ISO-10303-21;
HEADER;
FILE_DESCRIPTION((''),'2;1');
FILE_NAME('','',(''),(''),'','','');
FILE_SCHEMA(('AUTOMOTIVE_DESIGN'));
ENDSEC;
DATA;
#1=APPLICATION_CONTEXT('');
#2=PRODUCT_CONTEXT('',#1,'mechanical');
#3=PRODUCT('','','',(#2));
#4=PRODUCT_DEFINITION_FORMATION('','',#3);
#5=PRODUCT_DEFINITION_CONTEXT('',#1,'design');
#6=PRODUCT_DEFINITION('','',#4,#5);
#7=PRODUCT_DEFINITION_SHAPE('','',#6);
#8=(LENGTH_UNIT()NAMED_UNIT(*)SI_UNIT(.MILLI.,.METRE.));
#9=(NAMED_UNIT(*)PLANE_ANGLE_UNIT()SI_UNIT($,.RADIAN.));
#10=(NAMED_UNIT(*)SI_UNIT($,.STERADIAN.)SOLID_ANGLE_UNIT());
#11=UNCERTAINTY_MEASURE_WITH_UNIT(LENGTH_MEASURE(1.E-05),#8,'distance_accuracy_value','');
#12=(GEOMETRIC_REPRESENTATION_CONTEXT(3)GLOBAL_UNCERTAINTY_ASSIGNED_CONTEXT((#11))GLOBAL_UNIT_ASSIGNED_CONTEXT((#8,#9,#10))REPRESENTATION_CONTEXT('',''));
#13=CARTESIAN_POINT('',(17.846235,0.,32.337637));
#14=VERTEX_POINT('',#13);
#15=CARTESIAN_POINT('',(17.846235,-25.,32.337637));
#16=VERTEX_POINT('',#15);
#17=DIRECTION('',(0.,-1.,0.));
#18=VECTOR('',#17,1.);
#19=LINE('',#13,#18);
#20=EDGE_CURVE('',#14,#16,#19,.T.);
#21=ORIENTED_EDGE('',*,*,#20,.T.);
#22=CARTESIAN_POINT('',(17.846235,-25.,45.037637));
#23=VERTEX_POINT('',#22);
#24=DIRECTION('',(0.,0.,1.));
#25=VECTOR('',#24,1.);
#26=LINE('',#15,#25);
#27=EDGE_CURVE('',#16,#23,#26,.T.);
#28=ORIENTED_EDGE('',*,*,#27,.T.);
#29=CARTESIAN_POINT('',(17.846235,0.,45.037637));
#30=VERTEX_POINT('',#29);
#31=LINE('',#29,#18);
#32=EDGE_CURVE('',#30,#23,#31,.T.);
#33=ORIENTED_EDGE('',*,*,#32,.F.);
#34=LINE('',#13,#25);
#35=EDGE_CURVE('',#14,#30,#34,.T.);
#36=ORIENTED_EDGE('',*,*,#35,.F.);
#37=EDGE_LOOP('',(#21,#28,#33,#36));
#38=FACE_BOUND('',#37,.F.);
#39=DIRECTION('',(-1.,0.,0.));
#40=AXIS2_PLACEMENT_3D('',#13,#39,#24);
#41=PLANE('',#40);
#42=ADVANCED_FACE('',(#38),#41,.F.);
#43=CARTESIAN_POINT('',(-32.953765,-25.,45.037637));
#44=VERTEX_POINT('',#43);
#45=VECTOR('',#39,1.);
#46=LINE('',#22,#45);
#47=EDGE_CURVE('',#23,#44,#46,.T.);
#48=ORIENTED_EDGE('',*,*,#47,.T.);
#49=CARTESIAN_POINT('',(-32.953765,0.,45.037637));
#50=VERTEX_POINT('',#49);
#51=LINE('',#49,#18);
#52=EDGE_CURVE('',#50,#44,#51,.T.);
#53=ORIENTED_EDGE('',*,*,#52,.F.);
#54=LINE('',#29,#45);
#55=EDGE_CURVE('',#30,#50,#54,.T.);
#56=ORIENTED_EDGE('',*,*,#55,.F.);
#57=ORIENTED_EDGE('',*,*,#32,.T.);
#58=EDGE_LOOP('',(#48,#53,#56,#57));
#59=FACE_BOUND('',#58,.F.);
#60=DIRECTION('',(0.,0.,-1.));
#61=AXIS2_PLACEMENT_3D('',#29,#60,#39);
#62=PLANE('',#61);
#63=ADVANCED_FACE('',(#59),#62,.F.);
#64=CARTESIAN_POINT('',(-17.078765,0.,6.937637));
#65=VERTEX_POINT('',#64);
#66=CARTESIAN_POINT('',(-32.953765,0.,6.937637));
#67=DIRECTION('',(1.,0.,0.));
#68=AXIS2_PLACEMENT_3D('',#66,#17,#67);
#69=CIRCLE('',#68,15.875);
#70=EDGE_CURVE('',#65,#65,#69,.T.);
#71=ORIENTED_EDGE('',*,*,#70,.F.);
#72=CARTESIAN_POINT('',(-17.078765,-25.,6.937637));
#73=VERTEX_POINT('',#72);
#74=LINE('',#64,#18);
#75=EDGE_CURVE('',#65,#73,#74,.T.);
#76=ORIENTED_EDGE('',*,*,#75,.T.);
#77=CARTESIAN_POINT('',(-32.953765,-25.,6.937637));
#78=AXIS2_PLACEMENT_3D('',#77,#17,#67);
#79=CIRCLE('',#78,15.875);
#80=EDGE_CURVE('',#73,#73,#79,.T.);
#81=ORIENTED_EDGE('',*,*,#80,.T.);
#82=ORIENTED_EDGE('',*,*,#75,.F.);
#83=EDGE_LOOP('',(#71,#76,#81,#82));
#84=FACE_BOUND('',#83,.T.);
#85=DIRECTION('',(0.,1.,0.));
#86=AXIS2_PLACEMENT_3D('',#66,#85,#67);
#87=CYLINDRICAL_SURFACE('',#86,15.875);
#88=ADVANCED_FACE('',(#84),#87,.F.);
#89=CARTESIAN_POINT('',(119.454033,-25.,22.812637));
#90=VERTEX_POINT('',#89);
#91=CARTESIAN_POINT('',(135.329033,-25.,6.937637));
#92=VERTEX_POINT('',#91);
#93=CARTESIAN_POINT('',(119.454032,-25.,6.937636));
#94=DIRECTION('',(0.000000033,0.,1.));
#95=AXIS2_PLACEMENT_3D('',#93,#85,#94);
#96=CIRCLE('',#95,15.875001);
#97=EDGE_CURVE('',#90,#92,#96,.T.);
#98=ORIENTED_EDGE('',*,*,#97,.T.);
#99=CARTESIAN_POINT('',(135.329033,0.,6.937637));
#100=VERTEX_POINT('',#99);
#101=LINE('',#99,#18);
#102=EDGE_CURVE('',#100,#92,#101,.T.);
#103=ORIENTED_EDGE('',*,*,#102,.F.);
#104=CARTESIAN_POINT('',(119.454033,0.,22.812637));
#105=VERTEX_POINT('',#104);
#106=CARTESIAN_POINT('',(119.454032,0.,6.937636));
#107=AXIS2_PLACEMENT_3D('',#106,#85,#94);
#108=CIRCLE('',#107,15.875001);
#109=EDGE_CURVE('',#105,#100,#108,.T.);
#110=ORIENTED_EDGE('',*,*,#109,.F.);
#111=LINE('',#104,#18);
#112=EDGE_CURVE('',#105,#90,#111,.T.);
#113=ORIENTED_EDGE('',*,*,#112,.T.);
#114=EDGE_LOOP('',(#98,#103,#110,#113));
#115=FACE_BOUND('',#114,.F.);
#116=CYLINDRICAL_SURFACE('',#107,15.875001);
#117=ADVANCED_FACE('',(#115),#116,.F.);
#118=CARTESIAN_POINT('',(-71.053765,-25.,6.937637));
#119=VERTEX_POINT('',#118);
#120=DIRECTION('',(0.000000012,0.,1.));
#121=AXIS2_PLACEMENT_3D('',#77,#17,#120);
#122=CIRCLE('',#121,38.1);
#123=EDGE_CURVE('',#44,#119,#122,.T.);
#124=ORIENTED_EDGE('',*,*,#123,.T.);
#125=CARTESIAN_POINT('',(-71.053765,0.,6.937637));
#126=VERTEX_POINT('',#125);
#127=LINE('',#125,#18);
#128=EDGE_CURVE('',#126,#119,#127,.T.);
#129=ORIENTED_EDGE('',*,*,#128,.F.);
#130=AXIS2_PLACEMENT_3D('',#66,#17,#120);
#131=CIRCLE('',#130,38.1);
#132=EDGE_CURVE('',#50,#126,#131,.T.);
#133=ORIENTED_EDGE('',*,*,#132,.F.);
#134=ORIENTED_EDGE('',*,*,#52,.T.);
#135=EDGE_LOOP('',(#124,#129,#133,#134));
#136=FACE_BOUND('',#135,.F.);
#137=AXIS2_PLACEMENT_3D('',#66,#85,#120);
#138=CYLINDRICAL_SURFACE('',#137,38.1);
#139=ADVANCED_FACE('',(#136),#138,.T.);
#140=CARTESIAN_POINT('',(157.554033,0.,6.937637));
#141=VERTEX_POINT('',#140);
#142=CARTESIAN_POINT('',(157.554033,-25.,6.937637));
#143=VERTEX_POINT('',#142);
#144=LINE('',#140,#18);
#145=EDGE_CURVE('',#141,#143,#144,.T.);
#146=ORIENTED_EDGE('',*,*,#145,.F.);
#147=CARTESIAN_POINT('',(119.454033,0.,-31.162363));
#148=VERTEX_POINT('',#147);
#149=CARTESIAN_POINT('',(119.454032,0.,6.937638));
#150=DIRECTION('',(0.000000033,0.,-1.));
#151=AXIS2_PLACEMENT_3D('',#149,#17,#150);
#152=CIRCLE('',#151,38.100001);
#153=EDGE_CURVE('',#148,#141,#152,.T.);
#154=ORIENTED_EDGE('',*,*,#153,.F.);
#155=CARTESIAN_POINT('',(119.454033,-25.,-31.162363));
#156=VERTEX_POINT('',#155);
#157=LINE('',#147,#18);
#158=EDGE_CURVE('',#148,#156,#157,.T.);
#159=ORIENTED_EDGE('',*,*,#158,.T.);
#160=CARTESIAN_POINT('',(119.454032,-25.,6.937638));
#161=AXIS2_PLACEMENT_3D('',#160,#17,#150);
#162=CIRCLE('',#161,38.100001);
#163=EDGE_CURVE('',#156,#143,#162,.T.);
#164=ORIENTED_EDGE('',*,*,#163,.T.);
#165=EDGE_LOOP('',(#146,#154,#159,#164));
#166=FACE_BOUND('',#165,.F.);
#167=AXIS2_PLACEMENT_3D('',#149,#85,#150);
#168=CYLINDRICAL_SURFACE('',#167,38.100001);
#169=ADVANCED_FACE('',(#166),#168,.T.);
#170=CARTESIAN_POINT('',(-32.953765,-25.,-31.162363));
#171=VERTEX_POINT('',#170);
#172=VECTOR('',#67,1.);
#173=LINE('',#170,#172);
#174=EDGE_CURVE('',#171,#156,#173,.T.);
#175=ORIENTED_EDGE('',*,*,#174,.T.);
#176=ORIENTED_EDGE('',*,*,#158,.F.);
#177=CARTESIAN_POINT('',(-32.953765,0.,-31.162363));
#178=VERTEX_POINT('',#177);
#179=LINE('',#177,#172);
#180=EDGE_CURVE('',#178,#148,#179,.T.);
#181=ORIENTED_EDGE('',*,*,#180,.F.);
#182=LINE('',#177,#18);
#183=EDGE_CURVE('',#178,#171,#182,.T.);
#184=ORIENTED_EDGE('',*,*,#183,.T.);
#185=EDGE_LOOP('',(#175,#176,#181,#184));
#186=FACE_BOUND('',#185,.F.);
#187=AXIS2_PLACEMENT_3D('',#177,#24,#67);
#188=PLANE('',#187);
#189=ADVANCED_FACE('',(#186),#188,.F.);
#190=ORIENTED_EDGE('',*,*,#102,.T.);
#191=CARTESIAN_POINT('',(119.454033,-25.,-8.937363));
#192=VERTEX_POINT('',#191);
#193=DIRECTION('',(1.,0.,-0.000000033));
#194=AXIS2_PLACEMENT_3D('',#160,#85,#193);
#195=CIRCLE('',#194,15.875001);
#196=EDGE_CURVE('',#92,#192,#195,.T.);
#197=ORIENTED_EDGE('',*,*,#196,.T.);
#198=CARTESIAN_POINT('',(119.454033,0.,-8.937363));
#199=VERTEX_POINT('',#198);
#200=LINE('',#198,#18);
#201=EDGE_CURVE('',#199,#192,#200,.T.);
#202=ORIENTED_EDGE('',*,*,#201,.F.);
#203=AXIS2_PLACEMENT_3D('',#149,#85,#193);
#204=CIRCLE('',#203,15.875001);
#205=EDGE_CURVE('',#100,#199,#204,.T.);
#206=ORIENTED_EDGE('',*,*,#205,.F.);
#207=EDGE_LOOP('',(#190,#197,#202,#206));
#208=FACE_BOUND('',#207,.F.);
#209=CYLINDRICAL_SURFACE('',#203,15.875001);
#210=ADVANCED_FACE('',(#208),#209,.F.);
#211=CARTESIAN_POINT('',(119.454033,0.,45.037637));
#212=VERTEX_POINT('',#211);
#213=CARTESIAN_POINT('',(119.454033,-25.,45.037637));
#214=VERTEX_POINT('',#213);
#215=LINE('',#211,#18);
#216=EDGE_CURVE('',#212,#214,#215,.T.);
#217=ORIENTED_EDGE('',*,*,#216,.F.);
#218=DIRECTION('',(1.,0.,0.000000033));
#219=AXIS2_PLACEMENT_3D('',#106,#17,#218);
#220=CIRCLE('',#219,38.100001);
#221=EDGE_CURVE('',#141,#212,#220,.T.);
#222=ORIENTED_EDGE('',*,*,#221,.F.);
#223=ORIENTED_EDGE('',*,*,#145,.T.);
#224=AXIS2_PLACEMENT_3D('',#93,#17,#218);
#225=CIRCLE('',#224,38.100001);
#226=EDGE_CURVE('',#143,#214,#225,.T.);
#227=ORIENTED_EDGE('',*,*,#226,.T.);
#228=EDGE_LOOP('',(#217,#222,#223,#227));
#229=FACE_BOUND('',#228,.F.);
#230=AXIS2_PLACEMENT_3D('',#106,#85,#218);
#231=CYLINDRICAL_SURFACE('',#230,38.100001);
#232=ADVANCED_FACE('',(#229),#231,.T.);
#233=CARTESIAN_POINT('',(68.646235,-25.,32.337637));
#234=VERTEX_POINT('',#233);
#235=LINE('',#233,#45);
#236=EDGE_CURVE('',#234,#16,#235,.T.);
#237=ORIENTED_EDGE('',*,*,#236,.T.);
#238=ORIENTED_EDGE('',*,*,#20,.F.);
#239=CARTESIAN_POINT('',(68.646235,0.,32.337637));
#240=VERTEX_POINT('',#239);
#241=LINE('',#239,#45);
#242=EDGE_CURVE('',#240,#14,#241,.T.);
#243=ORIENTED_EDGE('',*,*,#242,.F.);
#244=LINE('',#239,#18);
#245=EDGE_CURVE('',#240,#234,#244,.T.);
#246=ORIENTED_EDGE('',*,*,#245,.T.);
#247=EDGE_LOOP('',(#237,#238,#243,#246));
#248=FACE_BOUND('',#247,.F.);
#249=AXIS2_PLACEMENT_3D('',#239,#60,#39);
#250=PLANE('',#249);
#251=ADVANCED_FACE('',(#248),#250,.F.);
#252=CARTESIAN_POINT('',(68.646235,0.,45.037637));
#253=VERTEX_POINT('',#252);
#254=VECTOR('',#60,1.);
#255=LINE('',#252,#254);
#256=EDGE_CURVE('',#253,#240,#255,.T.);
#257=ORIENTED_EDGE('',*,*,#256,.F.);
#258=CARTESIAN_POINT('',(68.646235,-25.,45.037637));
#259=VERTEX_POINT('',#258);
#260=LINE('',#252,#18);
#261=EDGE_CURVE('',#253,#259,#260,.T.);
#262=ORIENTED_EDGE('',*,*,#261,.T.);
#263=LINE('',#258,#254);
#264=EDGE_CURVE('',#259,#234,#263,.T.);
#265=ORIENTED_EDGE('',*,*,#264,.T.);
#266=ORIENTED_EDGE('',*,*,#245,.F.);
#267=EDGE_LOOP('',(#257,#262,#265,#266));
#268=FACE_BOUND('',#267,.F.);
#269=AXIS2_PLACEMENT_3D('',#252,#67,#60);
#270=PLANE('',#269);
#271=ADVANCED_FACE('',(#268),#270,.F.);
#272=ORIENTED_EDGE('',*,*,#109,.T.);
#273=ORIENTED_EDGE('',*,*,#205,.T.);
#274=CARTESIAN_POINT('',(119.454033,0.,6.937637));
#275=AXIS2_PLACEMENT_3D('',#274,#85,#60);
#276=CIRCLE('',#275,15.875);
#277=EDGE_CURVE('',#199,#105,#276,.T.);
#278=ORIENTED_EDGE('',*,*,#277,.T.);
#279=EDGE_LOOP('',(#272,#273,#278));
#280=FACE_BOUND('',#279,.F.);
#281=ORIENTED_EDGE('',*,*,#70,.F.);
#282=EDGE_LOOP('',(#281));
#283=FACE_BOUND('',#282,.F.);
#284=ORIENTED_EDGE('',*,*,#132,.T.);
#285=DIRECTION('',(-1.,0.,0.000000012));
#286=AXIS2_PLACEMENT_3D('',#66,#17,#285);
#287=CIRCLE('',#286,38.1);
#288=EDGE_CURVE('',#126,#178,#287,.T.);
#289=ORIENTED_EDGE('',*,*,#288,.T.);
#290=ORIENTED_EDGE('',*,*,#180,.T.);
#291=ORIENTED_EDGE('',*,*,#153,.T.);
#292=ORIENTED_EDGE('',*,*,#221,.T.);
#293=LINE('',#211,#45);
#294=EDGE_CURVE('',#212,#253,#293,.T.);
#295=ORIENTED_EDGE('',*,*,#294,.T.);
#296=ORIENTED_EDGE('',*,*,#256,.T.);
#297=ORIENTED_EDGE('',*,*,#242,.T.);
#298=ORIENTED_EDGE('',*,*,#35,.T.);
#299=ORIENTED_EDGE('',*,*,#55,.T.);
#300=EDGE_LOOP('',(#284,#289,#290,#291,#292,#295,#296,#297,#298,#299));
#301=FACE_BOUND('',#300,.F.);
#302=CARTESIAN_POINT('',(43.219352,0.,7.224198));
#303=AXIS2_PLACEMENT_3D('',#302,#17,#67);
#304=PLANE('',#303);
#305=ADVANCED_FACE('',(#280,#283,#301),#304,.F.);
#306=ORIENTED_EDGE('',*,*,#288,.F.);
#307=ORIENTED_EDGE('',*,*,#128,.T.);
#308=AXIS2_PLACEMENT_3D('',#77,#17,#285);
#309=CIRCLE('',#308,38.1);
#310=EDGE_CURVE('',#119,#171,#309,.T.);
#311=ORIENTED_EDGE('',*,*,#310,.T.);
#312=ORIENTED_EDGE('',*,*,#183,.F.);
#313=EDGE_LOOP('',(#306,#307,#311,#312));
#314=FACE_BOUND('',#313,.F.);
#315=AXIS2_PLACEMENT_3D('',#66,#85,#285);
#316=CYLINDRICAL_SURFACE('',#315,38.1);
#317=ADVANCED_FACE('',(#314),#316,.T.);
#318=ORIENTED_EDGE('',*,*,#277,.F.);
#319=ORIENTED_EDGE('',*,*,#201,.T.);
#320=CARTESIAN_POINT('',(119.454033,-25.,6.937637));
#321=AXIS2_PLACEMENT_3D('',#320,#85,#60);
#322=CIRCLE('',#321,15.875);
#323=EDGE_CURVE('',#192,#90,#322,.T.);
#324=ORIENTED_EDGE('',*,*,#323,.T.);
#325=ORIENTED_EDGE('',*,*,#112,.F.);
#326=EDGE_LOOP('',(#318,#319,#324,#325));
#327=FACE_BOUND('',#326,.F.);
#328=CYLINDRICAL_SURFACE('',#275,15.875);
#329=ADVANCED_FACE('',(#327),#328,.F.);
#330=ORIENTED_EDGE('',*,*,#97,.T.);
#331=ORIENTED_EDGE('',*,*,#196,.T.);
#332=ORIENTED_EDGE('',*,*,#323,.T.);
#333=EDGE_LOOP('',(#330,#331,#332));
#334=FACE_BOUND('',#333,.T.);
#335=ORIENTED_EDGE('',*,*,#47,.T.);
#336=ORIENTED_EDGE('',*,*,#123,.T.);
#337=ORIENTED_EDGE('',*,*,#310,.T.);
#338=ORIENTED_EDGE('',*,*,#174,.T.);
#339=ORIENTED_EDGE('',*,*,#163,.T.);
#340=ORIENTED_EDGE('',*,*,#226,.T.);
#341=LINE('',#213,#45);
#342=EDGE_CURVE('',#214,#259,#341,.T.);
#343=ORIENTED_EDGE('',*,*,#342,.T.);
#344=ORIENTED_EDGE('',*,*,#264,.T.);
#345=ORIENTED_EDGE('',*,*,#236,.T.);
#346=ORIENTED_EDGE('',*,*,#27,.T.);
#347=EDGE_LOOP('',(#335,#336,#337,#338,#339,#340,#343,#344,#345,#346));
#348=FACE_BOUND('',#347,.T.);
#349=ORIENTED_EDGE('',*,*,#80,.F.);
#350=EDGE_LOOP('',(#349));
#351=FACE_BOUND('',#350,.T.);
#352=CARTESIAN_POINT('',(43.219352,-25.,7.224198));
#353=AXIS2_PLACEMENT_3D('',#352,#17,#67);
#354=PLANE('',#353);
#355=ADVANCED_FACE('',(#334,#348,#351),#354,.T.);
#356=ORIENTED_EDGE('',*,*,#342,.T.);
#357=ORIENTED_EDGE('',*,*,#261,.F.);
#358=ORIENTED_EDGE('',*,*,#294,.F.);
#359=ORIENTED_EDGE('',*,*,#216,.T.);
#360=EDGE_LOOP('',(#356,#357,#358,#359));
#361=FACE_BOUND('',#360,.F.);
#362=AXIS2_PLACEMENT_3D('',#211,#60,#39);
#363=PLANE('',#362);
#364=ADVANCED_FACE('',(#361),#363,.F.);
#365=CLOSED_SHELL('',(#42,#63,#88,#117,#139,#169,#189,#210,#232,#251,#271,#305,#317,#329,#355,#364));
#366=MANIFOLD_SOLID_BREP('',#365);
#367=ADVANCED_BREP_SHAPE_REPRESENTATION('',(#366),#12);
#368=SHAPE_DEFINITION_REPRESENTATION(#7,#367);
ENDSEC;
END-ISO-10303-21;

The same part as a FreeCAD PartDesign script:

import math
import FreeCAD as App
import Part
import Sketcher
from FreeCAD import Vector
Q = App.Units.Quantity

doc = App.newDocument("Part")
body = doc.addObject("PartDesign::Body", "Body")

# Sketch on XZ plane
sketch1 = body.newObject("Sketcher::SketchObject", "Sketch")
sketch1.AttachmentSupport = (doc.getObject("XZ_Plane"), [""])
sketch1.MapMode = "FlatFace"
sketch1.addGeometry([
    Part.LineSegment(Vector(-32.953765, -31.162363, 0), Vector(119.454033, -31.162363, 0)),  # 0
    Part.ArcOfCircle(Part.Circle(Vector(119.454032, 6.937638, 0), Vector(0, 0, 1), 38.100001), math.radians(-89.999998), math.radians(-0.000002)),  # 1
    Part.ArcOfCircle(Part.Circle(Vector(119.454032, 6.937636, 0), Vector(0, 0, 1), 38.100001), math.radians(0.000002), math.radians(89.999998)),  # 2
    Part.LineSegment(Vector(119.454033, 45.037637, 0), Vector(68.646235, 45.037637, 0)),  # 3
    Part.LineSegment(Vector(68.646235, 45.037637, 0), Vector(68.646235, 32.337637, 0)),  # 4
    Part.LineSegment(Vector(68.646235, 32.337637, 0), Vector(17.846235, 32.337637, 0)),  # 5
    Part.LineSegment(Vector(17.846235, 32.337637, 0), Vector(17.846235, 45.037637, 0)),  # 6
    Part.LineSegment(Vector(17.846235, 45.037637, 0), Vector(-32.953765, 45.037637, 0)),  # 7
    Part.ArcOfCircle(Part.Circle(Vector(-32.953765, 6.937637, 0), Vector(0, 0, 1), 38.1), math.radians(89.999999), math.radians(180.000001)),  # 8
    Part.ArcOfCircle(Part.Circle(Vector(-32.953765, 6.937637, 0), Vector(0, 0, 1), 38.1), math.radians(179.999999), math.radians(270.000001)),  # 9
    Part.Circle(Vector(-32.953765, 6.937637, 0), Vector(0, 0, 1), 15.875),  # 10
    Part.ArcOfCircle(Part.Circle(Vector(119.454033, 6.937637, 0), Vector(0, 0, 1), 15.875), math.radians(90), math.radians(270)),  # 11
    Part.ArcOfCircle(Part.Circle(Vector(119.454032, 6.937636, 0), Vector(0, 0, 1), 15.875001), math.radians(0.000002), math.radians(89.999998)),  # 12
    Part.ArcOfCircle(Part.Circle(Vector(119.454032, 6.937638, 0), Vector(0, 0, 1), 15.875001), math.radians(-89.999998), math.radians(-0.000002)),  # 13
], False)
sketch1.addConstraint([
    Sketcher.Constraint("Tangent", 0, 2, 1, 1),
    Sketcher.Constraint("Tangent", 1, 2, 2, 1),
    Sketcher.Constraint("Tangent", 2, 2, 3, 1),
    Sketcher.Constraint("Coincident", 3, 2, 4, 1),
    Sketcher.Constraint("Coincident", 4, 2, 5, 1),
    Sketcher.Constraint("Coincident", 5, 2, 6, 1),
    Sketcher.Constraint("Coincident", 6, 2, 7, 1),
    Sketcher.Constraint("Tangent", 7, 2, 8, 1),
    Sketcher.Constraint("Tangent", 8, 2, 9, 1),
    Sketcher.Constraint("Tangent", 9, 2, 0, 1),
    Sketcher.Constraint("Tangent", 11, 1, 12, 2),
    Sketcher.Constraint("Tangent", 12, 1, 13, 2),
    Sketcher.Constraint("Tangent", 13, 1, 11, 2),
    Sketcher.Constraint("Horizontal", 0),
    Sketcher.Constraint("Horizontal", 3),
    Sketcher.Constraint("Vertical", 4),
    Sketcher.Constraint("Horizontal", 5),
    Sketcher.Constraint("Vertical", 6),
    Sketcher.Constraint("Horizontal", 7),
    Sketcher.Constraint("Coincident", 10, 3, 8, 3),
    Sketcher.Constraint("Coincident", 11, 3, 1, 3),
    Sketcher.Constraint("Equal", 1, 2),
    Sketcher.Constraint("Equal", 2, 8),
    Sketcher.Constraint("Equal", 8, 9),
    Sketcher.Constraint("Equal", 10, 11),
    Sketcher.Constraint("Horizontal", 13, 3, 1, 2),
    Sketcher.Constraint("Horizontal", 1, 2, 8, 2),
    Sketcher.Constraint("Horizontal", 8, 2, 12, 1),
    Sketcher.Constraint("Vertical", 2, 2, 11, 1),
    Sketcher.Constraint("Vertical", 11, 1, 13, 1),
    Sketcher.Constraint("Equal", 5, 7),
    Sketcher.Constraint("Radius", 1, Q("1.5 in")),
    Sketcher.Constraint("Diameter", 10, Q("1.25 in")),
    Sketcher.Constraint("DistanceX", 5, 2, 5, 1, Q("2 in")),
    Sketcher.Constraint("DistanceY", 4, 2, 4, 1, Q("0.5 in")),
    Sketcher.Constraint("DistanceX", 8, 3, 11, 3, 152.407798),
    Sketcher.Constraint("DistanceX", -1, 1, 1, 3, 119.454032),
    Sketcher.Constraint("DistanceY", -1, 1, 1, 3, 6.937638),
])
pad1 = body.newObject("PartDesign::Pad", "Pad")
pad1.Profile = sketch1
pad1.Length = 25

doc.recompute()
